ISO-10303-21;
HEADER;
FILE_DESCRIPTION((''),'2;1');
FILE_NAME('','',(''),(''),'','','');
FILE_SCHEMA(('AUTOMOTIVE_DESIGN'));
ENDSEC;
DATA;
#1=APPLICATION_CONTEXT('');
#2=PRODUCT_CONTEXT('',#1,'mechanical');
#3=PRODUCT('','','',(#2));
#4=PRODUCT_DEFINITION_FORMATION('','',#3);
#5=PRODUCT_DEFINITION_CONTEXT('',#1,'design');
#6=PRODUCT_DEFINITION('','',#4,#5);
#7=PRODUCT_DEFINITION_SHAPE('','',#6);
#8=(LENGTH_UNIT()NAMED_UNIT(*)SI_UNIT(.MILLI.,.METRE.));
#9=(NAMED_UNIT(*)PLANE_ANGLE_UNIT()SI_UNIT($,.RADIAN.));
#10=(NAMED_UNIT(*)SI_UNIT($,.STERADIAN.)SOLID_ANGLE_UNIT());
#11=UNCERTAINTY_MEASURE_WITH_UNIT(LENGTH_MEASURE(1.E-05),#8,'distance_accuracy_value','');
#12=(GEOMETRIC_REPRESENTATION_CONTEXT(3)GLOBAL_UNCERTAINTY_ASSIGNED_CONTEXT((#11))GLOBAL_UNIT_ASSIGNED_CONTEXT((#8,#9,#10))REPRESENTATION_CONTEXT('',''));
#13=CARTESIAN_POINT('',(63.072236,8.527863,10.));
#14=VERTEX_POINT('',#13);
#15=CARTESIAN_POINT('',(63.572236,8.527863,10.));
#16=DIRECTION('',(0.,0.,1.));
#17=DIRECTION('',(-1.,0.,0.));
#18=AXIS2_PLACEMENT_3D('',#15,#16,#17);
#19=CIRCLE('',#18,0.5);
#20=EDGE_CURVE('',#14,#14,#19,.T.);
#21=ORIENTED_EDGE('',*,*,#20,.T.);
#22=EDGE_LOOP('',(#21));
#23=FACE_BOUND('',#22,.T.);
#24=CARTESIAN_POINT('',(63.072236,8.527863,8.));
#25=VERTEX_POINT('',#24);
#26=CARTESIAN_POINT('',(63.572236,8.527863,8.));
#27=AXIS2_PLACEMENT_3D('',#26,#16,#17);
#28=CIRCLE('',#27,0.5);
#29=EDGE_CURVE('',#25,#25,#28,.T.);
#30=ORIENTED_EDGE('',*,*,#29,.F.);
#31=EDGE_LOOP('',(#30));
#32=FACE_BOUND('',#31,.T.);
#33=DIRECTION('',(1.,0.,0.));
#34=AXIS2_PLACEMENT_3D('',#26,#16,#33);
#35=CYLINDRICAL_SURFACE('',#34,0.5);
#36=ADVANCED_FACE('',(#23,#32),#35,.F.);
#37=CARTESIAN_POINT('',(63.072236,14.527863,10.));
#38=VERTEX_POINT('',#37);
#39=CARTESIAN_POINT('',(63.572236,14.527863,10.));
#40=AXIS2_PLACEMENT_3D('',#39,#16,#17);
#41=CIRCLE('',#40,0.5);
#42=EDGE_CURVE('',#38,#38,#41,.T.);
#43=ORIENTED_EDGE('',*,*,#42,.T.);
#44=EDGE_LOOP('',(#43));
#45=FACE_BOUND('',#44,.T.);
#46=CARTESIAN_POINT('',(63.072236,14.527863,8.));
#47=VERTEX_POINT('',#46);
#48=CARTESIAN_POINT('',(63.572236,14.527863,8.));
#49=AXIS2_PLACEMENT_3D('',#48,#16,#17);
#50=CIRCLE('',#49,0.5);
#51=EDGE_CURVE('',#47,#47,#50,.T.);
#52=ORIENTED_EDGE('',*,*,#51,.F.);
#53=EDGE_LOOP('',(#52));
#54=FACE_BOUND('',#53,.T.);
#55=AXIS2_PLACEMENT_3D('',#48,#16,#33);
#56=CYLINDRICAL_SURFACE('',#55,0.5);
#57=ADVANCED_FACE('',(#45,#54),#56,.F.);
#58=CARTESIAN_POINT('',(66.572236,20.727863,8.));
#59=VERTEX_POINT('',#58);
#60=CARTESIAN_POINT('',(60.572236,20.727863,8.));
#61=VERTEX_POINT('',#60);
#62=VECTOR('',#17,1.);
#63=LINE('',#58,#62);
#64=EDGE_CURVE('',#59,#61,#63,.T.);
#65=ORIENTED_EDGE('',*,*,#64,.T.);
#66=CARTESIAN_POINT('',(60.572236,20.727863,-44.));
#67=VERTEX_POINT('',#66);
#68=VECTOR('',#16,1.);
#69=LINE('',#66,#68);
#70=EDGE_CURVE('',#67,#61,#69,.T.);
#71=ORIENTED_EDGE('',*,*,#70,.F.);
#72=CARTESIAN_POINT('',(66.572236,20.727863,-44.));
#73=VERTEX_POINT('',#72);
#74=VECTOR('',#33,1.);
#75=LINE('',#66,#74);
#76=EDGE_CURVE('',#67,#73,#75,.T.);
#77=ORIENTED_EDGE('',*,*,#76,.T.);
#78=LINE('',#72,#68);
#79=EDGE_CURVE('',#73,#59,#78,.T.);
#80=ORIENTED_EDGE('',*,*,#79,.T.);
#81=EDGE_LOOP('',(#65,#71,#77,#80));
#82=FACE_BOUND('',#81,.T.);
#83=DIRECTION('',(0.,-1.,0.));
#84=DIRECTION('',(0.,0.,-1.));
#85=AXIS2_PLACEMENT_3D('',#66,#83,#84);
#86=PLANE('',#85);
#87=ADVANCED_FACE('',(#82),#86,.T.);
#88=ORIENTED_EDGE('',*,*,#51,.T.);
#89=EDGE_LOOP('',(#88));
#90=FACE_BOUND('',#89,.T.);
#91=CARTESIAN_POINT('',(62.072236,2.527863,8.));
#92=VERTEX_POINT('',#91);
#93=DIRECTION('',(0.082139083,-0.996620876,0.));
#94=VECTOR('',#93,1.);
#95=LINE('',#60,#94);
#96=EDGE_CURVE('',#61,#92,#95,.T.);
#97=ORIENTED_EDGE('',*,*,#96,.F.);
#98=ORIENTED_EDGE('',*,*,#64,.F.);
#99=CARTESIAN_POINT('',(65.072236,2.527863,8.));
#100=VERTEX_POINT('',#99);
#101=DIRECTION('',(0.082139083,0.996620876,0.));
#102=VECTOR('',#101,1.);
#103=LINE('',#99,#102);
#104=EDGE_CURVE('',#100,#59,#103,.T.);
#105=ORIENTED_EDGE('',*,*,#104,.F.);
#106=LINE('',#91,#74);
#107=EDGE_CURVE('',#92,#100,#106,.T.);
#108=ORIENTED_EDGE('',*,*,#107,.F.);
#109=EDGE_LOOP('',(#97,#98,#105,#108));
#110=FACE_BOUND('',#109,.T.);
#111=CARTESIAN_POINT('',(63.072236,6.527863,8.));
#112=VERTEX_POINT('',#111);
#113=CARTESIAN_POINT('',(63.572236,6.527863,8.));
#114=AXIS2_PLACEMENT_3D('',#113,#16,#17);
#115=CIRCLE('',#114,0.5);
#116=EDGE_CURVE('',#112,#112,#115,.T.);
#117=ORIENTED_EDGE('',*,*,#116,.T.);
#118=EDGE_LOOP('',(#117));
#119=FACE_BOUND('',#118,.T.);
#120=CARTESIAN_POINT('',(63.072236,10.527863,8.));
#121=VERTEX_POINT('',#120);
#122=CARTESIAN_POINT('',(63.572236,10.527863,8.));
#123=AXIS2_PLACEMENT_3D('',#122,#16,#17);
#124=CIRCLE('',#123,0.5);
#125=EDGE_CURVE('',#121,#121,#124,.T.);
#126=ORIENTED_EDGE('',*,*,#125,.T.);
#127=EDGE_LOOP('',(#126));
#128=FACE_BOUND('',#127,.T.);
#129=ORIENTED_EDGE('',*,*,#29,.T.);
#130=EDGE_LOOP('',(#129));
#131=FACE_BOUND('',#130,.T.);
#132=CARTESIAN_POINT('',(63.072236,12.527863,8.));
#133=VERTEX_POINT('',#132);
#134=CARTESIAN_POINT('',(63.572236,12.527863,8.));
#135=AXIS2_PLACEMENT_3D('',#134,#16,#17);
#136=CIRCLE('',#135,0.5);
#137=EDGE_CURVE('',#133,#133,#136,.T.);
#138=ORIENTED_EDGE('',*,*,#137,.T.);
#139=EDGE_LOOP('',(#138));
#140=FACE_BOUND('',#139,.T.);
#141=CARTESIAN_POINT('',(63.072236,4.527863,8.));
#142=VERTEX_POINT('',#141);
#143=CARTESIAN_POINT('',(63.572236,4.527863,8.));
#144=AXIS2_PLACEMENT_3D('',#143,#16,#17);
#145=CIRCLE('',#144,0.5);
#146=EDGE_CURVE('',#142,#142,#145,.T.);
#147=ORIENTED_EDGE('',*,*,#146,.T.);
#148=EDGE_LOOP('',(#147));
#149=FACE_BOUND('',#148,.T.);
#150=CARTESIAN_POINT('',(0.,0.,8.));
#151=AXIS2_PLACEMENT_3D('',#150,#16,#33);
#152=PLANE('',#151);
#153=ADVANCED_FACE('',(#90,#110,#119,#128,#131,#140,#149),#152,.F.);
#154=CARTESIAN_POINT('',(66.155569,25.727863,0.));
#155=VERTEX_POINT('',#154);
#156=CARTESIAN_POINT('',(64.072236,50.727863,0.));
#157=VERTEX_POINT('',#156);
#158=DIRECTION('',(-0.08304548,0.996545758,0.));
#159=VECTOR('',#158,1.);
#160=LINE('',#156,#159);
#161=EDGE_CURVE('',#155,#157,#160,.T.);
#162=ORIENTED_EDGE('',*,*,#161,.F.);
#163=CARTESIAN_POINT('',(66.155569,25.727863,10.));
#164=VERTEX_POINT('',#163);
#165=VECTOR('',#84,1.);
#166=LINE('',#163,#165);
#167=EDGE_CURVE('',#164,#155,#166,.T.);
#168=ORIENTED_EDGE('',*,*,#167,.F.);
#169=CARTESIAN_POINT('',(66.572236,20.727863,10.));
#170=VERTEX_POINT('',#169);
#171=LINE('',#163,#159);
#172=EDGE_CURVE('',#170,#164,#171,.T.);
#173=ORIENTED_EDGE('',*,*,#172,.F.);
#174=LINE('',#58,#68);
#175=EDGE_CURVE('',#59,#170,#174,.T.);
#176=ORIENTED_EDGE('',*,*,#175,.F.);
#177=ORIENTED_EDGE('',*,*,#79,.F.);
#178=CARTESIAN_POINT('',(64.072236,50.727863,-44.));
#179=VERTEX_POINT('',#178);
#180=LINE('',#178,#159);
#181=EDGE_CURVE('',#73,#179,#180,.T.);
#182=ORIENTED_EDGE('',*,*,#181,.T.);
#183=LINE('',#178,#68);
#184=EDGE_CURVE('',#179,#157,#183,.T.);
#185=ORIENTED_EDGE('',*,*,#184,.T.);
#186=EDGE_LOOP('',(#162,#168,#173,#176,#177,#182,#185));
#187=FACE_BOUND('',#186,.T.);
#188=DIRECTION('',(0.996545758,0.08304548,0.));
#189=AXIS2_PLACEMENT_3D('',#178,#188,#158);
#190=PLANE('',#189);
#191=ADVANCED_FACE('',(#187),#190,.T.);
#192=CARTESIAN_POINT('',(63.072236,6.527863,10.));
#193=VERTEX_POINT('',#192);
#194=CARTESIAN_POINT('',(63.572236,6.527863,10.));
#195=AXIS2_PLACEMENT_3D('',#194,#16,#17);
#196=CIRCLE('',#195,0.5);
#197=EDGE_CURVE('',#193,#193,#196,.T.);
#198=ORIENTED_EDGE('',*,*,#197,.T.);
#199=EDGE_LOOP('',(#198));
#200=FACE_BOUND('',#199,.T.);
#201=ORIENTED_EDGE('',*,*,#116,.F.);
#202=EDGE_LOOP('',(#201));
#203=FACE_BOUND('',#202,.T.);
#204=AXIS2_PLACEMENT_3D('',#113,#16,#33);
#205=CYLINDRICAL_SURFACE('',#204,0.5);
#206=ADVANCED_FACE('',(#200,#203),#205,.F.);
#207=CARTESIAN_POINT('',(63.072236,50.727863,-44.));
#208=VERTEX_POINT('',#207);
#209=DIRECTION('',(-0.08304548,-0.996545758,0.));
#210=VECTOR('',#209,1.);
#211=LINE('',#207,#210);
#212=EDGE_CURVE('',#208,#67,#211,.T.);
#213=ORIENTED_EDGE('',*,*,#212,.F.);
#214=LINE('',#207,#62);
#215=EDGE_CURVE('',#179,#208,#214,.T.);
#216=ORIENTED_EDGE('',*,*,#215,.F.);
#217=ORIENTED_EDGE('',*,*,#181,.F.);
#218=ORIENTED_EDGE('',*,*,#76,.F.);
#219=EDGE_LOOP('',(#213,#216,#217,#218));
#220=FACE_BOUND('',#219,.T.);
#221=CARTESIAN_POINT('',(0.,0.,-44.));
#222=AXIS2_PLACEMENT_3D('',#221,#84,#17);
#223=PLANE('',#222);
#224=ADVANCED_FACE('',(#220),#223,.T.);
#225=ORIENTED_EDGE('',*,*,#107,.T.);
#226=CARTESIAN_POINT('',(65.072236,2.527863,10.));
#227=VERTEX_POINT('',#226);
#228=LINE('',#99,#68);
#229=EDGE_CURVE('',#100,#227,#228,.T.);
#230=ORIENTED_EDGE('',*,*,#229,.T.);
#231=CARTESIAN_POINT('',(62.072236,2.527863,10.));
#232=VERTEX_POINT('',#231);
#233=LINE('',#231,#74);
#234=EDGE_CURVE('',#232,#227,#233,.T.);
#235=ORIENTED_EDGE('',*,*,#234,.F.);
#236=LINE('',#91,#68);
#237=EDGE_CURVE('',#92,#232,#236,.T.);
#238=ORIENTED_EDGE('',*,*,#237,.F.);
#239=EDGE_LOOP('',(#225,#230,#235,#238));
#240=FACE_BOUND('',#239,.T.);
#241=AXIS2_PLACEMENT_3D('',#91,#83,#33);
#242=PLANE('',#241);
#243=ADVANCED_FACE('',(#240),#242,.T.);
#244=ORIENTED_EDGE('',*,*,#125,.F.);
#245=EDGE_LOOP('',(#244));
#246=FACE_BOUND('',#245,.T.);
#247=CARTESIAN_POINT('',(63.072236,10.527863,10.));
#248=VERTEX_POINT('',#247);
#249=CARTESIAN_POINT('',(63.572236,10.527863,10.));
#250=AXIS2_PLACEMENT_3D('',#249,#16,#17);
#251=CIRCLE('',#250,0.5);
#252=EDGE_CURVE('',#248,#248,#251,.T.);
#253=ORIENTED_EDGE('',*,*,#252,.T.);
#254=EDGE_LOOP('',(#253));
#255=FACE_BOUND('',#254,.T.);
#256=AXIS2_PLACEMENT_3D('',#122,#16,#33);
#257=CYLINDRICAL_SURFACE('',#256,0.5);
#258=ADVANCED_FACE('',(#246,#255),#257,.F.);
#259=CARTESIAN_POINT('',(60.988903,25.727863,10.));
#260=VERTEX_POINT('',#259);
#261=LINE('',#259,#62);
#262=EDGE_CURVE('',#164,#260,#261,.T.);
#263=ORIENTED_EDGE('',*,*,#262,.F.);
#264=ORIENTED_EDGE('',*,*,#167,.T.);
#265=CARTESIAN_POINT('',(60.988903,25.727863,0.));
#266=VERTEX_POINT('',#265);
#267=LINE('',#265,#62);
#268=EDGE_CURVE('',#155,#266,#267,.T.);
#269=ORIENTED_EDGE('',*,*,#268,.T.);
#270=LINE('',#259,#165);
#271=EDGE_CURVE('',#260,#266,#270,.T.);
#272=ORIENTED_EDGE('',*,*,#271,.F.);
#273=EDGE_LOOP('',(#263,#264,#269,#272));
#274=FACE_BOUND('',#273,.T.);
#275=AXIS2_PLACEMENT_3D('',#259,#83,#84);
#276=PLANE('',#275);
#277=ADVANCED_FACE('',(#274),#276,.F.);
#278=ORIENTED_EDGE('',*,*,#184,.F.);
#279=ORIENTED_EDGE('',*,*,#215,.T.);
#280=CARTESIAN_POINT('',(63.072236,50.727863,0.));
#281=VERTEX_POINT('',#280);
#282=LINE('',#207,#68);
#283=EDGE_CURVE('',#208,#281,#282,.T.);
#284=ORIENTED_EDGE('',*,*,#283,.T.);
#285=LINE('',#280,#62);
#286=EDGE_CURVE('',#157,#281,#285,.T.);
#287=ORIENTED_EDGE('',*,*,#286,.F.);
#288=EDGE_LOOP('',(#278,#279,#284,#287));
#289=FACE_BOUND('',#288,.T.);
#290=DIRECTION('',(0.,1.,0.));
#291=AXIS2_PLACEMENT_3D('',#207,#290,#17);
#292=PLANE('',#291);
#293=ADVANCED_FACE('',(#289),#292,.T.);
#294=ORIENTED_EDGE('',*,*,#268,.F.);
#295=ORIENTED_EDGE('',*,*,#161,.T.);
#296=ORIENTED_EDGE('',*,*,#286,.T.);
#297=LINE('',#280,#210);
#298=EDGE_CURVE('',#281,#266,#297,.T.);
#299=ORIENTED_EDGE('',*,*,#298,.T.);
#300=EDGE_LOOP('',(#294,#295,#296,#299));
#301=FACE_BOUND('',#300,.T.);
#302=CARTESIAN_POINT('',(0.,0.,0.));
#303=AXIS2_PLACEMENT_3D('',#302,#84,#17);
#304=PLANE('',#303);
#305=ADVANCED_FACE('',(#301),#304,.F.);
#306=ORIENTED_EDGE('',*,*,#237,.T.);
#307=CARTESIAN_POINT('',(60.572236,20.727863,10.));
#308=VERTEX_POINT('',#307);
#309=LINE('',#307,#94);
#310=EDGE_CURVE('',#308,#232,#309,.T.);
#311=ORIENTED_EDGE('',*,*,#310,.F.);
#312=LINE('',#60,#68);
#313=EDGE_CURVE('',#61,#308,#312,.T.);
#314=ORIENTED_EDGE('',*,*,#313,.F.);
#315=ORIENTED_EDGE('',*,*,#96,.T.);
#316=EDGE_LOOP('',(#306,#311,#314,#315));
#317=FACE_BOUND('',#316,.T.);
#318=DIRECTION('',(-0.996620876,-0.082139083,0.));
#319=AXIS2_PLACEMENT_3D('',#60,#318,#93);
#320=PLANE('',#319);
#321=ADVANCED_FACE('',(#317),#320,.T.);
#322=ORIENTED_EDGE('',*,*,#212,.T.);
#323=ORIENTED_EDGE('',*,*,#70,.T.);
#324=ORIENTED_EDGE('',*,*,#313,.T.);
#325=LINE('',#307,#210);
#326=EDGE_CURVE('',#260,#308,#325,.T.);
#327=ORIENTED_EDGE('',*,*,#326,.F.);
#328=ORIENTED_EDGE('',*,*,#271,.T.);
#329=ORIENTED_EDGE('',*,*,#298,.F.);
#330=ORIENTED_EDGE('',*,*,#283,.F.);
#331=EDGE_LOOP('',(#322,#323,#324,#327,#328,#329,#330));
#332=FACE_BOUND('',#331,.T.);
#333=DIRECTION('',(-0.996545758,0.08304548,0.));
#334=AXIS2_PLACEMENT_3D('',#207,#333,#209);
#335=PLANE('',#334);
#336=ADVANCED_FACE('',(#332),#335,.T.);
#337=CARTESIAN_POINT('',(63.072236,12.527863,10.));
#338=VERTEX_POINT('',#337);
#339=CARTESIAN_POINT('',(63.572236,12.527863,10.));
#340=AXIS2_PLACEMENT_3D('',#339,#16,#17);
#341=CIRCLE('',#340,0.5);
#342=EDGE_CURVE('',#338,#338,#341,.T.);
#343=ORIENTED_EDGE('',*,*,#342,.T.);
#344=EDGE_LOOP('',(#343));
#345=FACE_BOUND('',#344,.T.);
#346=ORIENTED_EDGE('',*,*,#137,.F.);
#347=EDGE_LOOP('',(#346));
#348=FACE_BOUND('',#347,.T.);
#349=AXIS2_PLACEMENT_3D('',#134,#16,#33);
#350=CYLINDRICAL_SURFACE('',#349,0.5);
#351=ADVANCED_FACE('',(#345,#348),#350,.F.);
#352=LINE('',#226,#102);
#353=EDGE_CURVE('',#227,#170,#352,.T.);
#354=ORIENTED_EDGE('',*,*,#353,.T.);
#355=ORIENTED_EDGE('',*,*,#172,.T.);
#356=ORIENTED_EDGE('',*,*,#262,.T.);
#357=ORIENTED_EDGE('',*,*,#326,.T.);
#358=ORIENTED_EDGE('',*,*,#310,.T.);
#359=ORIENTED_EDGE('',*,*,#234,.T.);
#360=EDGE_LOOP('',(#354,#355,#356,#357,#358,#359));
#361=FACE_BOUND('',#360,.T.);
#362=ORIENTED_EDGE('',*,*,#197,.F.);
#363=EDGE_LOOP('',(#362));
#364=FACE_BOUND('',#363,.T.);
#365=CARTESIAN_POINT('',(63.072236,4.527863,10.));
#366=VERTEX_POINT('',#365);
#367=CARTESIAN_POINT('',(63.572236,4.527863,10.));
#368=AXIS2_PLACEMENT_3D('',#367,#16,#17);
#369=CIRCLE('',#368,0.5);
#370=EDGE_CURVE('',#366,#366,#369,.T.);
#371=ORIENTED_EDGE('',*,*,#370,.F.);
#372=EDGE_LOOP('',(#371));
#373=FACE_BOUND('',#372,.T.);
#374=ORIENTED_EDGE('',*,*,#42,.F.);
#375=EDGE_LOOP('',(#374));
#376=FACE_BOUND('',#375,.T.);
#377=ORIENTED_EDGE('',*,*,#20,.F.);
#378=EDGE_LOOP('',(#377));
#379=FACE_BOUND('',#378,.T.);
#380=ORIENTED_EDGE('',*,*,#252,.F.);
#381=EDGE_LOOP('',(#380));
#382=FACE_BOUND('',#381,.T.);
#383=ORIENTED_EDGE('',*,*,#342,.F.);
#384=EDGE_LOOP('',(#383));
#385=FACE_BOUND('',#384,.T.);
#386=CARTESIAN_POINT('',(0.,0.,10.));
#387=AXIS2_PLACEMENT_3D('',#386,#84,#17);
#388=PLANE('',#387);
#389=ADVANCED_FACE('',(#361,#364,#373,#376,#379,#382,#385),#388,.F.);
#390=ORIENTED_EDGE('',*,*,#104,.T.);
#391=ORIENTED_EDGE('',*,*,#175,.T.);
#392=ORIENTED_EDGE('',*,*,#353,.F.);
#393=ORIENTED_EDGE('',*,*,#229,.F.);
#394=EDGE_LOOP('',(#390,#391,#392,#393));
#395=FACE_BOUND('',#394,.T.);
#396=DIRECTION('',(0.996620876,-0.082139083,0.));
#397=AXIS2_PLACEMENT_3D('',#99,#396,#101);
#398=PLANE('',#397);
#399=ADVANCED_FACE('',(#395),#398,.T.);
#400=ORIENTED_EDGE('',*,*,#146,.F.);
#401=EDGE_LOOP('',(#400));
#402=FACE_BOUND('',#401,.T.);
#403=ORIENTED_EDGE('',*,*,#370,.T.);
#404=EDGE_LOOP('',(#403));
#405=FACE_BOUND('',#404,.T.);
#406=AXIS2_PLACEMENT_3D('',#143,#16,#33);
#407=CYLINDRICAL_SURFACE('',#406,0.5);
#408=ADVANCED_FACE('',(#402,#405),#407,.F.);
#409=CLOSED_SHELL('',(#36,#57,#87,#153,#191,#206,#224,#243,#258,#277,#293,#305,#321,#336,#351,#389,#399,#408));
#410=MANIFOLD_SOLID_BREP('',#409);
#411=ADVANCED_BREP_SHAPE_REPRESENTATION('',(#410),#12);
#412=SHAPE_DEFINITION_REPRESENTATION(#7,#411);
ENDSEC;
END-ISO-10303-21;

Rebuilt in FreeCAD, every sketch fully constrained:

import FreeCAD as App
import Part
import Sketcher

doc = App.newDocument("Part")
params = doc.addObject("Spreadsheet::Sheet", "Params")
for row, (alias, value) in enumerate([
    ("sketch1_width", "1 mm"),
    ("sketch1_width2", "6 mm"),
    ("pad1_length", "44 mm"),
    ("sketch2_width", "6 mm"),
    ("pad2_length", "10 mm"),
    ("sketch3_diameter", "1 mm"),
    ("sketch3_width", "6 mm"),
    ("sketch3_width2", "3 mm"),
    ("pad3_length", "2 mm"),
], start=1):
    params.set(f"A{row}", alias)
    params.set(f"B{row}", "=" + value)
    params.setAlias(f"B{row}", alias)

body = doc.addObject("PartDesign::Body", "Body")

# Sketch on XY plane
sketch1 = body.newObject("Sketcher::SketchObject", "Sketch")
sketch1.AttachmentSupport = (doc.getObject("XY_Plane"), [""])
sketch1.MapMode = "FlatFace"
sketch1.addGeometry([
    Part.LineSegment(App.Vector(64.1, 50.7, 0), App.Vector(63.1, 50.7, 0)),
    Part.LineSegment(App.Vector(63.1, 50.7, 0), App.Vector(60.6, 20.7, 0)),
    Part.LineSegment(App.Vector(60.6, 20.7, 0), App.Vector(66.6, 20.7, 0)),
    Part.LineSegment(App.Vector(66.6, 20.7, 0), App.Vector(64.1, 50.7, 0)),
], False)
sketch1.addConstraint([
    Sketcher.Constraint("Coincident", 0, 2, 1, 1),
    Sketcher.Constraint("Coincident", 1, 2, 2, 1),
    Sketcher.Constraint("Coincident", 2, 2, 3, 1),
    Sketcher.Constraint("Coincident", 3, 2, 0, 1),
    Sketcher.Constraint("Horizontal", 0),
    Sketcher.Constraint("Horizontal", 2),
    Sketcher.Constraint("Equal", 1, 3),
    Sketcher.Constraint("DistanceX", 0, 2, 0, 1, 1.0),
    Sketcher.Constraint("DistanceX", 2, 1, 2, 2, 6.0),
    Sketcher.Constraint("DistanceY", 1, 2, 0, 2, 30.0),
    Sketcher.Constraint("DistanceX", -1, 1, 0, 2, 63.072236),
    Sketcher.Constraint("DistanceY", -1, 1, 0, 2, 50.727863),
])
sketch1.setExpression("Constraints[7]", "Params.sketch1_width")
sketch1.setExpression("Constraints[8]", "Params.sketch1_width2")
pad1 = body.newObject("PartDesign::Pad", "Pad")
pad1.Profile = sketch1
pad1.setExpression("Length", "Params.pad1_length")
pad1.Reversed = True

# Sketch on XY plane
sketch2 = body.newObject("Sketcher::SketchObject", "Sketch001")
sketch2.AttachmentSupport = (doc.getObject("XY_Plane"), [""])
sketch2.MapMode = "FlatFace"
sketch2.addGeometry([
    Part.LineSegment(App.Vector(60.988903, 25.727863, 0), App.Vector(60.572236, 20.727863, 0)),
    Part.LineSegment(App.Vector(60.572236, 20.727863, 0), App.Vector(66.572236, 20.727863, 0)),
    Part.LineSegment(App.Vector(66.572236, 20.727863, 0), App.Vector(66.155569, 25.727863, 0)),
    Part.LineSegment(App.Vector(66.155569, 25.727863, 0), App.Vector(60.988903, 25.727863, 0)),
], False)
sketch2.addConstraint([
    Sketcher.Constraint("Coincident", 0, 2, 1, 1),
    Sketcher.Constraint("Coincident", 1, 2, 2, 1),
    Sketcher.Constraint("Coincident", 2, 2, 3, 1),
    Sketcher.Constraint("Coincident", 3, 2, 0, 1),
    Sketcher.Constraint("Horizontal", 1),
    Sketcher.Constraint("Horizontal", 3),
    Sketcher.Constraint("Equal", 0, 2),
    Sketcher.Constraint("DistanceX", 1, 1, 1, 2, 6.0),
    Sketcher.Constraint("DistanceY", 1, 2, 2, 2, 5.0),
    Sketcher.Constraint("Distance", 0, 5.017331),
    Sketcher.Constraint("DistanceX", -1, 1, 2, 2, 66.155569),
    Sketcher.Constraint("DistanceY", -1, 1, 0, 2, 20.727863),
])
sketch2.setExpression("Constraints[7]", "Params.sketch2_width")
pad2 = body.newObject("PartDesign::Pad", "Pad001")
pad2.Profile = sketch2
pad2.setExpression("Length", "Params.pad2_length")

# Sketch on XY plane
sketch3 = body.newObject("Sketcher::SketchObject", "Sketch002")
sketch3.AttachmentSupport = (doc.getObject("XY_Plane"), [""])
sketch3.MapMode = "FlatFace"
sketch3.AttachmentOffset = App.Placement(App.Vector(0, 0, 10), App.Rotation())
sketch3.addGeometry([
    Part.LineSegment(App.Vector(66.6, 20.7, 0), App.Vector(60.6, 20.7, 0)),  # 0
    Part.LineSegment(App.Vector(60.6, 20.7, 0), App.Vector(62.1, 2.5, 0)),  # 1
    Part.LineSegment(App.Vector(62.1, 2.5, 0), App.Vector(65.1, 2.5, 0)),  # 2
    Part.LineSegment(App.Vector(65.1, 2.5, 0), App.Vector(66.6, 20.7, 0)),  # 3
    Part.Circle(App.Vector(63.6, 4.5, 0), App.Vector(0, 0, 1), 0.5),  # 4
    Part.Circle(App.Vector(63.6, 6.5, 0), App.Vector(0, 0, 1), 0.5),  # 5
    Part.Circle(App.Vector(63.6, 8.5, 0), App.Vector(0, 0, 1), 0.5),  # 6
    Part.Circle(App.Vector(63.6, 10.5, 0), App.Vector(0, 0, 1), 0.5),  # 7
    Part.Circle(App.Vector(63.6, 12.5, 0), App.Vector(0, 0, 1), 0.5),  # 8
    Part.Circle(App.Vector(63.6, 14.5, 0), App.Vector(0, 0, 1), 0.5),  # 9
], False)
sketch3.addConstraint([
    Sketcher.Constraint("Coincident", 0, 2, 1, 1),
    Sketcher.Constraint("Coincident", 1, 2, 2, 1),
    Sketcher.Constraint("Coincident", 2, 2, 3, 1),
    Sketcher.Constraint("Coincident", 3, 2, 0, 1),
    Sketcher.Constraint("Horizontal", 0),
    Sketcher.Constraint("Horizontal", 2),
    Sketcher.Constraint("Equal", 4, 5),
    Sketcher.Constraint("Equal", 5, 6),
    Sketcher.Constraint("Equal", 6, 7),
    Sketcher.Constraint("Equal", 7, 8),
    Sketcher.Constraint("Equal", 8, 9),
    Sketcher.Constraint("Vertical", 4, 3, 5, 3),
    Sketcher.Constraint("Vertical", 5, 3, 6, 3),
    Sketcher.Constraint("Vertical", 6, 3, 7, 3),
    Sketcher.Constraint("Vertical", 7, 3, 8, 3),
    Sketcher.Constraint("Vertical", 8, 3, 9, 3),
    Sketcher.Constraint("Equal", 1, 3),
    Sketcher.Constraint("Diameter", 4, 1.0),
    Sketcher.Constraint("DistanceX", 0, 2, 0, 1, 6.0),
    Sketcher.Constraint("DistanceX", 2, 1, 2, 2, 3.0),
    Sketcher.Constraint("DistanceY", 4, 3, 5, 3, 2.0),
    Sketcher.Constraint("DistanceY", 5, 3, 6, 3, 2.0),
    Sketcher.Constraint("DistanceY", 6, 3, 7, 3, 2.0),
    Sketcher.Constraint("DistanceY", 7, 3, 8, 3, 2.0),
    Sketcher.Constraint("DistanceY", 8, 3, 9, 3, 2.0),
    Sketcher.Constraint("DistanceX", 0, 2, 9, 3, 3.0),
    Sketcher.Constraint("DistanceY", 1, 2, 4, 3, 2.0),
    Sketcher.Constraint("DistanceY", 9, 3, 0, 2, 6.2),
    Sketcher.Constraint("DistanceX", -1, 1, 4, 3, 63.572236),
    Sketcher.Constraint("DistanceY", -1, 1, 4, 3, 4.527863),
])
sketch3.setExpression("Constraints[17]", "Params.sketch3_diameter")
sketch3.setExpression("Constraints[18]", "Params.sketch3_width")
sketch3.setExpression("Constraints[19]", "Params.sketch3_width2")
pad3 = body.newObject("PartDesign::Pad", "Pad002")
pad3.Profile = sketch3
pad3.setExpression("Length", "Params.pad3_length")
pad3.Reversed = True

doc.recompute()
